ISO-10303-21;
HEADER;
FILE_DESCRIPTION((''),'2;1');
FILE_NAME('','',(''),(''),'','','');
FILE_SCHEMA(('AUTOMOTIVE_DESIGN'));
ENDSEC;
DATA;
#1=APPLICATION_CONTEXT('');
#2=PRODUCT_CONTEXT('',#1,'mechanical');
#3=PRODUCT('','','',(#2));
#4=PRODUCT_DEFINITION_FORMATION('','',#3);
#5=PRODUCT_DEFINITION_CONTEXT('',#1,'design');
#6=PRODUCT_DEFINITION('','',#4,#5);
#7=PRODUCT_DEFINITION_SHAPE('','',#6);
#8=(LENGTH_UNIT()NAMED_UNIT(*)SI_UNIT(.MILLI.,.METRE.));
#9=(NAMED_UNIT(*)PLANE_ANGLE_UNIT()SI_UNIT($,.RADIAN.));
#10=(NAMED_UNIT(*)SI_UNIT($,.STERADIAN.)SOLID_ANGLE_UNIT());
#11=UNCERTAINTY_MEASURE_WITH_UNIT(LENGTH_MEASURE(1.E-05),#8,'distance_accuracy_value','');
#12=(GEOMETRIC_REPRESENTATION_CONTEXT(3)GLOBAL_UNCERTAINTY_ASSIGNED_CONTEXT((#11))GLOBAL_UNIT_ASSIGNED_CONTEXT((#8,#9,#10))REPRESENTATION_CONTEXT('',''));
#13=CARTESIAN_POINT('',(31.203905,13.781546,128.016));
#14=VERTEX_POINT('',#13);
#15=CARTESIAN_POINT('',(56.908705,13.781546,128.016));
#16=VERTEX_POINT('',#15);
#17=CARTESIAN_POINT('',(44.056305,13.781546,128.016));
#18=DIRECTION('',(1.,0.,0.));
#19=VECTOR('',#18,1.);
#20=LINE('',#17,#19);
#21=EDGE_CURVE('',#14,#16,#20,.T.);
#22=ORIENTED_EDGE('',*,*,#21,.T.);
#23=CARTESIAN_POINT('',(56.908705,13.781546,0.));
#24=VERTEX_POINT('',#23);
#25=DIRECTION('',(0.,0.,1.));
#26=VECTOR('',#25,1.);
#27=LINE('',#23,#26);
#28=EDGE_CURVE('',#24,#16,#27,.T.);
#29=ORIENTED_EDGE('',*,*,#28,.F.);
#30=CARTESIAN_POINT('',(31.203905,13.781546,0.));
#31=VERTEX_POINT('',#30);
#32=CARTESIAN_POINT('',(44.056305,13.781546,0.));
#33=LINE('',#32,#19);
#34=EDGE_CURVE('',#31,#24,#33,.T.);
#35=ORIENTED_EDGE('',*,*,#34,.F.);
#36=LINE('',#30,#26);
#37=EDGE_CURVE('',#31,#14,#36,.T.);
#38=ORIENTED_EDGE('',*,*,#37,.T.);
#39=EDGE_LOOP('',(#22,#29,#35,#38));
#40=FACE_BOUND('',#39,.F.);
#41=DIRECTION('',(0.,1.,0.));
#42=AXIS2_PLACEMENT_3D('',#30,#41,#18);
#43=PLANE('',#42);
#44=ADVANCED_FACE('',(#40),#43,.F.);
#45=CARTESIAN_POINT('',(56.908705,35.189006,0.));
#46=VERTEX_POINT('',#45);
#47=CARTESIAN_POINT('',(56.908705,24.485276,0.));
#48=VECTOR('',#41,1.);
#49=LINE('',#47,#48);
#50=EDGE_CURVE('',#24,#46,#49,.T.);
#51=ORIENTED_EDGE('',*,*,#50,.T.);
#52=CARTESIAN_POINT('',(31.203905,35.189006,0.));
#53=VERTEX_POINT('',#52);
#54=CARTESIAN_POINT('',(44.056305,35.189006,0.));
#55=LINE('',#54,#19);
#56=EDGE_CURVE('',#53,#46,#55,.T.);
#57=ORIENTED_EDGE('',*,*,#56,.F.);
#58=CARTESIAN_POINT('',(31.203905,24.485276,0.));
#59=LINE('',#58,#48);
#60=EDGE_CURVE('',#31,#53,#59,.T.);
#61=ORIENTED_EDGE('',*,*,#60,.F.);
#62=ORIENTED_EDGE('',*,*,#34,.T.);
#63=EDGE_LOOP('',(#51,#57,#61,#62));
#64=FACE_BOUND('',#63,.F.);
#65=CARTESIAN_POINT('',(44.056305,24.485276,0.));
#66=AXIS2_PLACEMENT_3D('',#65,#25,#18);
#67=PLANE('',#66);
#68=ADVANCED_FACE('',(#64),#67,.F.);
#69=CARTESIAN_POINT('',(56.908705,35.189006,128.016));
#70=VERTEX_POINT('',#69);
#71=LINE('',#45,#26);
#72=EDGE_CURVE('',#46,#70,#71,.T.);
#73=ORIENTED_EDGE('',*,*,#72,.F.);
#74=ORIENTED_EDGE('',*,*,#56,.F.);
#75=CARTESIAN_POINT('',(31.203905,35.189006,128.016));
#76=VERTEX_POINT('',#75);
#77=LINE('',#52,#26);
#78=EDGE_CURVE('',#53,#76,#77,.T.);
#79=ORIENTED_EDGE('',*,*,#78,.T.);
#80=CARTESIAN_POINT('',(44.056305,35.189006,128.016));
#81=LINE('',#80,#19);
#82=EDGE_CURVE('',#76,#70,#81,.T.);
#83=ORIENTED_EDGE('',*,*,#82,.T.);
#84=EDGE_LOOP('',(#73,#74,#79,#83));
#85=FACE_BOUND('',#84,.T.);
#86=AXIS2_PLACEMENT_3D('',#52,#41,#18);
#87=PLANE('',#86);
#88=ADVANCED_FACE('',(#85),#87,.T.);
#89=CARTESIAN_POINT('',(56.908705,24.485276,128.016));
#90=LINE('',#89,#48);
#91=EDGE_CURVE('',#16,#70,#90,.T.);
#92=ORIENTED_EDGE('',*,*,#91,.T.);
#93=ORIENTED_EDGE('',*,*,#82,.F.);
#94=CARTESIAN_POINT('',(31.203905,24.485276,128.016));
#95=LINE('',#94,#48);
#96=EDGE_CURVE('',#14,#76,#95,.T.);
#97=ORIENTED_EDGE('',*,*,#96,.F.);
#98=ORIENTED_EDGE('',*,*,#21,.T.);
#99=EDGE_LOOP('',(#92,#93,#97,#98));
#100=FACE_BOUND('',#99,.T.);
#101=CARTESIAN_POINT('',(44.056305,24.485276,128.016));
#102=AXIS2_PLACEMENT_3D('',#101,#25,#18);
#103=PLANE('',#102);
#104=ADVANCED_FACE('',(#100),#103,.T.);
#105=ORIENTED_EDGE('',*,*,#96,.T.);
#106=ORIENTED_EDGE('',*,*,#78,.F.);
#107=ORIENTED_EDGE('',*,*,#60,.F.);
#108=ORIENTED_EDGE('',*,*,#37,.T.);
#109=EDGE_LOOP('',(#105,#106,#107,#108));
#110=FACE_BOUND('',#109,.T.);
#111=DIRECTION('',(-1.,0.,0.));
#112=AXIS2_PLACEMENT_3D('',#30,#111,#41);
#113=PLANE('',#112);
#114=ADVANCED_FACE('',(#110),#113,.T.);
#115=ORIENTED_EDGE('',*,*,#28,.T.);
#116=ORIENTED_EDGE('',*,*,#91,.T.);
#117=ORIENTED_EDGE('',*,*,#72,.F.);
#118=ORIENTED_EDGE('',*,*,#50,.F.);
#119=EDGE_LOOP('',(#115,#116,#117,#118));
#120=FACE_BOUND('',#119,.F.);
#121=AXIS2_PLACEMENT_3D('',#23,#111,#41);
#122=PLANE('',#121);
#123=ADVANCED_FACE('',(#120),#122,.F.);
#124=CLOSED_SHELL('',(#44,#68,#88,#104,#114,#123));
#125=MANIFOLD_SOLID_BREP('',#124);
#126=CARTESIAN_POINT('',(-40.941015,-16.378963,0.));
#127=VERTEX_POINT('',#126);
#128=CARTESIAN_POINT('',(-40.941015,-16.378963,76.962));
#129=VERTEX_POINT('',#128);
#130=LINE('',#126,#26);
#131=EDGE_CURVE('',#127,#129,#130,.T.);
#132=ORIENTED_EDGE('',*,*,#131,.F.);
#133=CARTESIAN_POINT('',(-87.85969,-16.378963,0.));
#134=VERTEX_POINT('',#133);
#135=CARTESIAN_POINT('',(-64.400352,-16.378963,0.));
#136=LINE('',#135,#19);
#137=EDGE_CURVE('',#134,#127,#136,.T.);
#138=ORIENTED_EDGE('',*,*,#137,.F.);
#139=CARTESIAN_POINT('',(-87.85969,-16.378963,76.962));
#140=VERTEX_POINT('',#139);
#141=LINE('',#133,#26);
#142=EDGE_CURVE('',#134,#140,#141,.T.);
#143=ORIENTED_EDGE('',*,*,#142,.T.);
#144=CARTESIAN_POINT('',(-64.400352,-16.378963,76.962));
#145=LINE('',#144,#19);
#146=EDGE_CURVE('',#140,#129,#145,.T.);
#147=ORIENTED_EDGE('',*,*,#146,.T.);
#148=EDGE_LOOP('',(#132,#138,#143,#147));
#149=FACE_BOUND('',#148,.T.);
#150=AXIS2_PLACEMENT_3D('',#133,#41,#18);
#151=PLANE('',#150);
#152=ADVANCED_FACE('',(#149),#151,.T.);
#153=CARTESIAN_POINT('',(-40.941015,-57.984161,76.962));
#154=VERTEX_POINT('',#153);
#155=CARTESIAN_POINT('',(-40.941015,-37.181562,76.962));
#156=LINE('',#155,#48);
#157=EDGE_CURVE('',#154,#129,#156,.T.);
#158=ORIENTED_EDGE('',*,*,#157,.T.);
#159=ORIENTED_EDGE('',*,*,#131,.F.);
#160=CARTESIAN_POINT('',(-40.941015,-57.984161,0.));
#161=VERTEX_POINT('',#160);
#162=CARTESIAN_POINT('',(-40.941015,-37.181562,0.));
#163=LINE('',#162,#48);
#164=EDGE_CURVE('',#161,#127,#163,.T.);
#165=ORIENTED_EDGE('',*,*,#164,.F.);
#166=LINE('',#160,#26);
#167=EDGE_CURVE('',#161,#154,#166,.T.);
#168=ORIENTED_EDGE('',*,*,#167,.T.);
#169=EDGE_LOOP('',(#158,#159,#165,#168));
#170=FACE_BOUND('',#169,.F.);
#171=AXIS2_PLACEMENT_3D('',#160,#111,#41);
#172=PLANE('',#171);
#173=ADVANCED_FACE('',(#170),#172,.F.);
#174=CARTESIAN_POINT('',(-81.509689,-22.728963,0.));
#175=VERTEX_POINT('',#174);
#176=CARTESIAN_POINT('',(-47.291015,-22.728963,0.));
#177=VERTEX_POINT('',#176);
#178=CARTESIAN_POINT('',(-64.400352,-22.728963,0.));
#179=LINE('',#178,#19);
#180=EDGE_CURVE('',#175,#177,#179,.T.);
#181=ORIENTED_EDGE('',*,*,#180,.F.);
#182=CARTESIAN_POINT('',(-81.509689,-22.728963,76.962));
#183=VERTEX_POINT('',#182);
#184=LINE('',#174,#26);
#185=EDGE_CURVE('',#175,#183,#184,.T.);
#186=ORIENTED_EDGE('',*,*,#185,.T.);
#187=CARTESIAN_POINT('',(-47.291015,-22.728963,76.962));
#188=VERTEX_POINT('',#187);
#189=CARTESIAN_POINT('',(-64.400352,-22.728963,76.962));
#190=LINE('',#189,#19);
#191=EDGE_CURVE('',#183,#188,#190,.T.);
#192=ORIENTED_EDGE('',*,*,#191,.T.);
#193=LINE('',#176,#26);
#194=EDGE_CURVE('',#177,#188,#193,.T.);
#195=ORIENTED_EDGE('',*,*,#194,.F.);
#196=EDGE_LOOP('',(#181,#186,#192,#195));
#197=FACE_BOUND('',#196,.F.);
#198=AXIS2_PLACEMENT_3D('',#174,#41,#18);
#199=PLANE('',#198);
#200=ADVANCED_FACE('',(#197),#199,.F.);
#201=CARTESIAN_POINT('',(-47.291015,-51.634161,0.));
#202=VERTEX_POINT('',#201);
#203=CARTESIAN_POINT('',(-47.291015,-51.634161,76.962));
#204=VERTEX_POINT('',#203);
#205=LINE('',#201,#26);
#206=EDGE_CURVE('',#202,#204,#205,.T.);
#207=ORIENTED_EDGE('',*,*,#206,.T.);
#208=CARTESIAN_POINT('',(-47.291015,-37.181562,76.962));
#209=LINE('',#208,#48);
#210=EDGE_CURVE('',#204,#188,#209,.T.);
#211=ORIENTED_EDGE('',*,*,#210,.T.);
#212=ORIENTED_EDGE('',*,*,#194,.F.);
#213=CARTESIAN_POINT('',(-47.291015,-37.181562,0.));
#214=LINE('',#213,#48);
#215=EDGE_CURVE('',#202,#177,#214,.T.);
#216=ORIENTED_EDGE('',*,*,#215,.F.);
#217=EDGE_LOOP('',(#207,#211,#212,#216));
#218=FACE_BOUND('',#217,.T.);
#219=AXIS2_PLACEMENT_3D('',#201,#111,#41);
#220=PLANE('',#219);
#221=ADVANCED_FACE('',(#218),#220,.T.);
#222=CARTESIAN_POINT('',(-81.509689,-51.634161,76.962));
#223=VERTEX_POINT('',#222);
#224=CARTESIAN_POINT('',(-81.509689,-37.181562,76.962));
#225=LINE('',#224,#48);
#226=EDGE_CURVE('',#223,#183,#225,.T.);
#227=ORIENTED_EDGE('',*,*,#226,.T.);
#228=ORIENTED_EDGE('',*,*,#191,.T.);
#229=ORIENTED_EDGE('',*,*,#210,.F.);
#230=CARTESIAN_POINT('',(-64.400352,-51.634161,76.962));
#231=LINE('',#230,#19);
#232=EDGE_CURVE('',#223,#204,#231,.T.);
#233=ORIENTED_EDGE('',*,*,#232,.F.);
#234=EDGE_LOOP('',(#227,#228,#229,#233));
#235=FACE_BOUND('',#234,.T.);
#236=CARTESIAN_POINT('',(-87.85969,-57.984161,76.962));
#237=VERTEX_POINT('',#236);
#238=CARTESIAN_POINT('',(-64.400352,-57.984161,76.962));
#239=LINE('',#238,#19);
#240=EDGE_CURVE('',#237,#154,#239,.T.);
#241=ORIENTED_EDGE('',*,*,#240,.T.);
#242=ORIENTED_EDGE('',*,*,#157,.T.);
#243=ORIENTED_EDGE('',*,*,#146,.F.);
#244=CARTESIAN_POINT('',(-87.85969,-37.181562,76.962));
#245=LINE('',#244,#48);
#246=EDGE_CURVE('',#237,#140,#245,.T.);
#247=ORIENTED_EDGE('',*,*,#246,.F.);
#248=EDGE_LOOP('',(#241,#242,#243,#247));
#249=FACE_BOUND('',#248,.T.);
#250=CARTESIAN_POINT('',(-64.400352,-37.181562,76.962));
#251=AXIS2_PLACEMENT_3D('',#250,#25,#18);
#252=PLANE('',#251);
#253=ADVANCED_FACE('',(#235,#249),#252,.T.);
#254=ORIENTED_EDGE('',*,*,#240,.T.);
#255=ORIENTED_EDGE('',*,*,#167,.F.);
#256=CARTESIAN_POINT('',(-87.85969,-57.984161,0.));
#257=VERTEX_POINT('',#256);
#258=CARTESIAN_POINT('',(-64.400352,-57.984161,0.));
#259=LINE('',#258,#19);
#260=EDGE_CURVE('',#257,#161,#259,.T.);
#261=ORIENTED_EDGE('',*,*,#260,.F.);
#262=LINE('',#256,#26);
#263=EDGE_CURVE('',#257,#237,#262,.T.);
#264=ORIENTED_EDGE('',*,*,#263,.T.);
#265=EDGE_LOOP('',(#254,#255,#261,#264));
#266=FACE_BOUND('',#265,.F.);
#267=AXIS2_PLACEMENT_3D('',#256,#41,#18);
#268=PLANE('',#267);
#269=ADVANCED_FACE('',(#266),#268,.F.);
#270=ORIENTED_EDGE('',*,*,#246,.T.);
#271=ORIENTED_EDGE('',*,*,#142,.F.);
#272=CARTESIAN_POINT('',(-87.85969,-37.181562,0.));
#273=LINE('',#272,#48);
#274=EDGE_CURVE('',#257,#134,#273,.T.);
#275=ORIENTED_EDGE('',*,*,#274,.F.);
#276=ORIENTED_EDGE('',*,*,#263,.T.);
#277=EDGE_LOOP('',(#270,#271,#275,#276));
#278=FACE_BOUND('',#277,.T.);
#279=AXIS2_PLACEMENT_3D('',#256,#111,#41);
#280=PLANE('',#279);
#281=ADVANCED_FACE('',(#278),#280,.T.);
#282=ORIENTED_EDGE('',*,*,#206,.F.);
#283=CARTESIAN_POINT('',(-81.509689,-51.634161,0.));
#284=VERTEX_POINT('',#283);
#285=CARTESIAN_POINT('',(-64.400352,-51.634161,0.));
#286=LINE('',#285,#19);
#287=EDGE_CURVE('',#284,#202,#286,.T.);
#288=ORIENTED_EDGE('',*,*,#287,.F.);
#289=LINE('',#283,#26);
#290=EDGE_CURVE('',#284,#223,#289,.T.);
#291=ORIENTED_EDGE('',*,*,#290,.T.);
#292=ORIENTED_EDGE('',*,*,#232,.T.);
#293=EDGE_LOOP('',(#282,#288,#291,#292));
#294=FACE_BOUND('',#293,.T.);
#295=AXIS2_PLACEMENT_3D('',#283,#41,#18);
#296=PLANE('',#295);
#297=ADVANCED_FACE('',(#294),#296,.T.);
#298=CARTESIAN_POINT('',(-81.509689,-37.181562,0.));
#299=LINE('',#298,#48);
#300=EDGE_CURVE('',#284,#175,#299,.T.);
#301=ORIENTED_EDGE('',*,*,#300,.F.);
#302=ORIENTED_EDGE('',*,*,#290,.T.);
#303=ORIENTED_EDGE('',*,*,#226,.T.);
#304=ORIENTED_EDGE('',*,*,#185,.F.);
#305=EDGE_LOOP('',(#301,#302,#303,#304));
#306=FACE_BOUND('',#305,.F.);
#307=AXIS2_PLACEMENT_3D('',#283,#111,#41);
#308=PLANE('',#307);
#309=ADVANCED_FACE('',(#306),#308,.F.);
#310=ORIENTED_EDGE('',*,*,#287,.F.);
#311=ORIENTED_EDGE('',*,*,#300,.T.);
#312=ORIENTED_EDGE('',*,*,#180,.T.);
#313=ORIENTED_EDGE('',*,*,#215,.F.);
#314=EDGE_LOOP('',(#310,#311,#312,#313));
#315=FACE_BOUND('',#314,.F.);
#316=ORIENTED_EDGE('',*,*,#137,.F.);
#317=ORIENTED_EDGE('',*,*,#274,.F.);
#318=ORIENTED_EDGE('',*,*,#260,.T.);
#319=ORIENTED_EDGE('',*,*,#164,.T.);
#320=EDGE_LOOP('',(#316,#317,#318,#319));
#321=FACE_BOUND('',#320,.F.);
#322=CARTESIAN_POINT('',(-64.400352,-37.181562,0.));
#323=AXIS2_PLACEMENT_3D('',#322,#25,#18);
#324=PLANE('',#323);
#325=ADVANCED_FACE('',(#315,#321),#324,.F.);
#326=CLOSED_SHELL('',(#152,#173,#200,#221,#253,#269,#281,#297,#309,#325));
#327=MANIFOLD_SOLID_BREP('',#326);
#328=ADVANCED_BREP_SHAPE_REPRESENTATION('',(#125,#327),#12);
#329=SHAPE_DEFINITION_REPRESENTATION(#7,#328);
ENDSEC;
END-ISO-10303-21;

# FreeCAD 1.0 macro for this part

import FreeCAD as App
import Part
import Sketcher
from FreeCAD import Vector
Q = App.Units.Quantity


def add_polygon(sketch, points):
    """Adds a closed chain of lines whose ends are joined by coincident constraints."""
    first, n = sketch.GeometryCount, len(points)
    for a, b in zip(points, points[1:] + points[:1]):
        sketch.addGeometry(Part.LineSegment(App.Vector(*a, 0), App.Vector(*b, 0)), False)
    for i in range(n):
        sketch.addConstraint(Sketcher.Constraint("Coincident", first + i, 2, first + (i + 1) % n, 1))

doc = App.newDocument("Part")
body = doc.addObject("PartDesign::Body", "Body")

# Sketch on XY plane
sketch1 = body.newObject("Sketcher::SketchObject", "Sketch")
sketch1.AttachmentSupport = (doc.getObject("XY_Plane"), [""])
sketch1.MapMode = "FlatFace"
add_polygon(sketch1, [(-87.85969, -16.378963), (-87.85969, -57.984161), (-40.941015, -57.984161), (-40.941015, -16.378963)])  # lines 0-3
add_polygon(sketch1, [(-47.291015, -51.634161), (-81.509689, -51.634161), (-81.509689, -22.728963), (-47.291015, -22.728963)])  # lines 4-7
sketch1.addConstraint(Sketcher.Constraint("Vertical", 0))
sketch1.addConstraint(Sketcher.Constraint("Horizontal", 1))
sketch1.addConstraint(Sketcher.Constraint("Vertical", 2))
sketch1.addConstraint(Sketcher.Constraint("Horizontal", 3))
sketch1.addConstraint(Sketcher.Constraint("Horizontal", 4))
sketch1.addConstraint(Sketcher.Constraint("Vertical", 5))
sketch1.addConstraint(Sketcher.Constraint("Horizontal", 6))
sketch1.addConstraint(Sketcher.Constraint("Vertical", 7))
sketch1.addConstraint(Sketcher.Constraint("DistanceY", 0, 2, 0, 1, Q("1.638 in")))
sketch1.addConstraint(Sketcher.Constraint("DistanceY", 5, 1, 5, 2, Q("1.138 in")))
sketch1.addConstraint(Sketcher.Constraint("DistanceX", 0, 2, 4, 2, Q("0.25 in")))
sketch1.addConstraint(Sketcher.Constraint("DistanceY", 0, 2, 4, 2, Q("0.25 in")))
sketch1.addConstraint(Sketcher.Constraint("DistanceX", 6, 2, 2, 2, Q("0.25 in")))
sketch1.addConstraint(Sketcher.Constraint("DistanceX", 1, 1, 1, 2, 46.918675))
sketch1.addConstraint(Sketcher.Constraint("DistanceX", 0, 2, -1, 1, 87.85969))
sketch1.addConstraint(Sketcher.Constraint("DistanceY", 0, 2, -1, 1, 57.984161))
pad1 = body.newObject("PartDesign::Pad", "Pad")
pad1.Profile = sketch1
pad1.Length = Q("3.03 in")
body2 = doc.addObject("PartDesign::Body", "Body001")

# Sketch on XY plane
sketch2 = body2.newObject("Sketcher::SketchObject", "Sketch001")
sketch2.AttachmentSupport = (doc.getObject("XY_Plane001"), [""])
sketch2.MapMode = "FlatFace"
add_polygon(sketch2, [(31.203905, 35.189006), (31.203905, 13.781546), (56.908705, 13.781546), (56.908705, 35.189006)])  # lines 0-3
sketch2.addConstraint(Sketcher.Constraint("Vertical", 0))
sketch2.addConstraint(Sketcher.Constraint("Horizontal", 1))
sketch2.addConstraint(Sketcher.Constraint("Vertical", 2))
sketch2.addConstraint(Sketcher.Constraint("Horizontal", 3))
sketch2.addConstraint(Sketcher.Constraint("DistanceX", 1, 1, 1, 2, Q("1.012 in")))
sketch2.addConstraint(Sketcher.Constraint("DistanceX", -1, 1, 0, 2, Q("1.2285002 in")))
sketch2.addConstraint(Sketcher.Constraint("DistanceY", 0, 2, 0, 1, 21.40746))
sketch2.addConstraint(Sketcher.Constraint("DistanceY", -1, 1, 0, 2, 13.781546))
pad2 = body2.newObject("PartDesign::Pad", "Pad001")
pad2.Profile = sketch2
pad2.Length = Q("5.04 in")

doc.recompute()
